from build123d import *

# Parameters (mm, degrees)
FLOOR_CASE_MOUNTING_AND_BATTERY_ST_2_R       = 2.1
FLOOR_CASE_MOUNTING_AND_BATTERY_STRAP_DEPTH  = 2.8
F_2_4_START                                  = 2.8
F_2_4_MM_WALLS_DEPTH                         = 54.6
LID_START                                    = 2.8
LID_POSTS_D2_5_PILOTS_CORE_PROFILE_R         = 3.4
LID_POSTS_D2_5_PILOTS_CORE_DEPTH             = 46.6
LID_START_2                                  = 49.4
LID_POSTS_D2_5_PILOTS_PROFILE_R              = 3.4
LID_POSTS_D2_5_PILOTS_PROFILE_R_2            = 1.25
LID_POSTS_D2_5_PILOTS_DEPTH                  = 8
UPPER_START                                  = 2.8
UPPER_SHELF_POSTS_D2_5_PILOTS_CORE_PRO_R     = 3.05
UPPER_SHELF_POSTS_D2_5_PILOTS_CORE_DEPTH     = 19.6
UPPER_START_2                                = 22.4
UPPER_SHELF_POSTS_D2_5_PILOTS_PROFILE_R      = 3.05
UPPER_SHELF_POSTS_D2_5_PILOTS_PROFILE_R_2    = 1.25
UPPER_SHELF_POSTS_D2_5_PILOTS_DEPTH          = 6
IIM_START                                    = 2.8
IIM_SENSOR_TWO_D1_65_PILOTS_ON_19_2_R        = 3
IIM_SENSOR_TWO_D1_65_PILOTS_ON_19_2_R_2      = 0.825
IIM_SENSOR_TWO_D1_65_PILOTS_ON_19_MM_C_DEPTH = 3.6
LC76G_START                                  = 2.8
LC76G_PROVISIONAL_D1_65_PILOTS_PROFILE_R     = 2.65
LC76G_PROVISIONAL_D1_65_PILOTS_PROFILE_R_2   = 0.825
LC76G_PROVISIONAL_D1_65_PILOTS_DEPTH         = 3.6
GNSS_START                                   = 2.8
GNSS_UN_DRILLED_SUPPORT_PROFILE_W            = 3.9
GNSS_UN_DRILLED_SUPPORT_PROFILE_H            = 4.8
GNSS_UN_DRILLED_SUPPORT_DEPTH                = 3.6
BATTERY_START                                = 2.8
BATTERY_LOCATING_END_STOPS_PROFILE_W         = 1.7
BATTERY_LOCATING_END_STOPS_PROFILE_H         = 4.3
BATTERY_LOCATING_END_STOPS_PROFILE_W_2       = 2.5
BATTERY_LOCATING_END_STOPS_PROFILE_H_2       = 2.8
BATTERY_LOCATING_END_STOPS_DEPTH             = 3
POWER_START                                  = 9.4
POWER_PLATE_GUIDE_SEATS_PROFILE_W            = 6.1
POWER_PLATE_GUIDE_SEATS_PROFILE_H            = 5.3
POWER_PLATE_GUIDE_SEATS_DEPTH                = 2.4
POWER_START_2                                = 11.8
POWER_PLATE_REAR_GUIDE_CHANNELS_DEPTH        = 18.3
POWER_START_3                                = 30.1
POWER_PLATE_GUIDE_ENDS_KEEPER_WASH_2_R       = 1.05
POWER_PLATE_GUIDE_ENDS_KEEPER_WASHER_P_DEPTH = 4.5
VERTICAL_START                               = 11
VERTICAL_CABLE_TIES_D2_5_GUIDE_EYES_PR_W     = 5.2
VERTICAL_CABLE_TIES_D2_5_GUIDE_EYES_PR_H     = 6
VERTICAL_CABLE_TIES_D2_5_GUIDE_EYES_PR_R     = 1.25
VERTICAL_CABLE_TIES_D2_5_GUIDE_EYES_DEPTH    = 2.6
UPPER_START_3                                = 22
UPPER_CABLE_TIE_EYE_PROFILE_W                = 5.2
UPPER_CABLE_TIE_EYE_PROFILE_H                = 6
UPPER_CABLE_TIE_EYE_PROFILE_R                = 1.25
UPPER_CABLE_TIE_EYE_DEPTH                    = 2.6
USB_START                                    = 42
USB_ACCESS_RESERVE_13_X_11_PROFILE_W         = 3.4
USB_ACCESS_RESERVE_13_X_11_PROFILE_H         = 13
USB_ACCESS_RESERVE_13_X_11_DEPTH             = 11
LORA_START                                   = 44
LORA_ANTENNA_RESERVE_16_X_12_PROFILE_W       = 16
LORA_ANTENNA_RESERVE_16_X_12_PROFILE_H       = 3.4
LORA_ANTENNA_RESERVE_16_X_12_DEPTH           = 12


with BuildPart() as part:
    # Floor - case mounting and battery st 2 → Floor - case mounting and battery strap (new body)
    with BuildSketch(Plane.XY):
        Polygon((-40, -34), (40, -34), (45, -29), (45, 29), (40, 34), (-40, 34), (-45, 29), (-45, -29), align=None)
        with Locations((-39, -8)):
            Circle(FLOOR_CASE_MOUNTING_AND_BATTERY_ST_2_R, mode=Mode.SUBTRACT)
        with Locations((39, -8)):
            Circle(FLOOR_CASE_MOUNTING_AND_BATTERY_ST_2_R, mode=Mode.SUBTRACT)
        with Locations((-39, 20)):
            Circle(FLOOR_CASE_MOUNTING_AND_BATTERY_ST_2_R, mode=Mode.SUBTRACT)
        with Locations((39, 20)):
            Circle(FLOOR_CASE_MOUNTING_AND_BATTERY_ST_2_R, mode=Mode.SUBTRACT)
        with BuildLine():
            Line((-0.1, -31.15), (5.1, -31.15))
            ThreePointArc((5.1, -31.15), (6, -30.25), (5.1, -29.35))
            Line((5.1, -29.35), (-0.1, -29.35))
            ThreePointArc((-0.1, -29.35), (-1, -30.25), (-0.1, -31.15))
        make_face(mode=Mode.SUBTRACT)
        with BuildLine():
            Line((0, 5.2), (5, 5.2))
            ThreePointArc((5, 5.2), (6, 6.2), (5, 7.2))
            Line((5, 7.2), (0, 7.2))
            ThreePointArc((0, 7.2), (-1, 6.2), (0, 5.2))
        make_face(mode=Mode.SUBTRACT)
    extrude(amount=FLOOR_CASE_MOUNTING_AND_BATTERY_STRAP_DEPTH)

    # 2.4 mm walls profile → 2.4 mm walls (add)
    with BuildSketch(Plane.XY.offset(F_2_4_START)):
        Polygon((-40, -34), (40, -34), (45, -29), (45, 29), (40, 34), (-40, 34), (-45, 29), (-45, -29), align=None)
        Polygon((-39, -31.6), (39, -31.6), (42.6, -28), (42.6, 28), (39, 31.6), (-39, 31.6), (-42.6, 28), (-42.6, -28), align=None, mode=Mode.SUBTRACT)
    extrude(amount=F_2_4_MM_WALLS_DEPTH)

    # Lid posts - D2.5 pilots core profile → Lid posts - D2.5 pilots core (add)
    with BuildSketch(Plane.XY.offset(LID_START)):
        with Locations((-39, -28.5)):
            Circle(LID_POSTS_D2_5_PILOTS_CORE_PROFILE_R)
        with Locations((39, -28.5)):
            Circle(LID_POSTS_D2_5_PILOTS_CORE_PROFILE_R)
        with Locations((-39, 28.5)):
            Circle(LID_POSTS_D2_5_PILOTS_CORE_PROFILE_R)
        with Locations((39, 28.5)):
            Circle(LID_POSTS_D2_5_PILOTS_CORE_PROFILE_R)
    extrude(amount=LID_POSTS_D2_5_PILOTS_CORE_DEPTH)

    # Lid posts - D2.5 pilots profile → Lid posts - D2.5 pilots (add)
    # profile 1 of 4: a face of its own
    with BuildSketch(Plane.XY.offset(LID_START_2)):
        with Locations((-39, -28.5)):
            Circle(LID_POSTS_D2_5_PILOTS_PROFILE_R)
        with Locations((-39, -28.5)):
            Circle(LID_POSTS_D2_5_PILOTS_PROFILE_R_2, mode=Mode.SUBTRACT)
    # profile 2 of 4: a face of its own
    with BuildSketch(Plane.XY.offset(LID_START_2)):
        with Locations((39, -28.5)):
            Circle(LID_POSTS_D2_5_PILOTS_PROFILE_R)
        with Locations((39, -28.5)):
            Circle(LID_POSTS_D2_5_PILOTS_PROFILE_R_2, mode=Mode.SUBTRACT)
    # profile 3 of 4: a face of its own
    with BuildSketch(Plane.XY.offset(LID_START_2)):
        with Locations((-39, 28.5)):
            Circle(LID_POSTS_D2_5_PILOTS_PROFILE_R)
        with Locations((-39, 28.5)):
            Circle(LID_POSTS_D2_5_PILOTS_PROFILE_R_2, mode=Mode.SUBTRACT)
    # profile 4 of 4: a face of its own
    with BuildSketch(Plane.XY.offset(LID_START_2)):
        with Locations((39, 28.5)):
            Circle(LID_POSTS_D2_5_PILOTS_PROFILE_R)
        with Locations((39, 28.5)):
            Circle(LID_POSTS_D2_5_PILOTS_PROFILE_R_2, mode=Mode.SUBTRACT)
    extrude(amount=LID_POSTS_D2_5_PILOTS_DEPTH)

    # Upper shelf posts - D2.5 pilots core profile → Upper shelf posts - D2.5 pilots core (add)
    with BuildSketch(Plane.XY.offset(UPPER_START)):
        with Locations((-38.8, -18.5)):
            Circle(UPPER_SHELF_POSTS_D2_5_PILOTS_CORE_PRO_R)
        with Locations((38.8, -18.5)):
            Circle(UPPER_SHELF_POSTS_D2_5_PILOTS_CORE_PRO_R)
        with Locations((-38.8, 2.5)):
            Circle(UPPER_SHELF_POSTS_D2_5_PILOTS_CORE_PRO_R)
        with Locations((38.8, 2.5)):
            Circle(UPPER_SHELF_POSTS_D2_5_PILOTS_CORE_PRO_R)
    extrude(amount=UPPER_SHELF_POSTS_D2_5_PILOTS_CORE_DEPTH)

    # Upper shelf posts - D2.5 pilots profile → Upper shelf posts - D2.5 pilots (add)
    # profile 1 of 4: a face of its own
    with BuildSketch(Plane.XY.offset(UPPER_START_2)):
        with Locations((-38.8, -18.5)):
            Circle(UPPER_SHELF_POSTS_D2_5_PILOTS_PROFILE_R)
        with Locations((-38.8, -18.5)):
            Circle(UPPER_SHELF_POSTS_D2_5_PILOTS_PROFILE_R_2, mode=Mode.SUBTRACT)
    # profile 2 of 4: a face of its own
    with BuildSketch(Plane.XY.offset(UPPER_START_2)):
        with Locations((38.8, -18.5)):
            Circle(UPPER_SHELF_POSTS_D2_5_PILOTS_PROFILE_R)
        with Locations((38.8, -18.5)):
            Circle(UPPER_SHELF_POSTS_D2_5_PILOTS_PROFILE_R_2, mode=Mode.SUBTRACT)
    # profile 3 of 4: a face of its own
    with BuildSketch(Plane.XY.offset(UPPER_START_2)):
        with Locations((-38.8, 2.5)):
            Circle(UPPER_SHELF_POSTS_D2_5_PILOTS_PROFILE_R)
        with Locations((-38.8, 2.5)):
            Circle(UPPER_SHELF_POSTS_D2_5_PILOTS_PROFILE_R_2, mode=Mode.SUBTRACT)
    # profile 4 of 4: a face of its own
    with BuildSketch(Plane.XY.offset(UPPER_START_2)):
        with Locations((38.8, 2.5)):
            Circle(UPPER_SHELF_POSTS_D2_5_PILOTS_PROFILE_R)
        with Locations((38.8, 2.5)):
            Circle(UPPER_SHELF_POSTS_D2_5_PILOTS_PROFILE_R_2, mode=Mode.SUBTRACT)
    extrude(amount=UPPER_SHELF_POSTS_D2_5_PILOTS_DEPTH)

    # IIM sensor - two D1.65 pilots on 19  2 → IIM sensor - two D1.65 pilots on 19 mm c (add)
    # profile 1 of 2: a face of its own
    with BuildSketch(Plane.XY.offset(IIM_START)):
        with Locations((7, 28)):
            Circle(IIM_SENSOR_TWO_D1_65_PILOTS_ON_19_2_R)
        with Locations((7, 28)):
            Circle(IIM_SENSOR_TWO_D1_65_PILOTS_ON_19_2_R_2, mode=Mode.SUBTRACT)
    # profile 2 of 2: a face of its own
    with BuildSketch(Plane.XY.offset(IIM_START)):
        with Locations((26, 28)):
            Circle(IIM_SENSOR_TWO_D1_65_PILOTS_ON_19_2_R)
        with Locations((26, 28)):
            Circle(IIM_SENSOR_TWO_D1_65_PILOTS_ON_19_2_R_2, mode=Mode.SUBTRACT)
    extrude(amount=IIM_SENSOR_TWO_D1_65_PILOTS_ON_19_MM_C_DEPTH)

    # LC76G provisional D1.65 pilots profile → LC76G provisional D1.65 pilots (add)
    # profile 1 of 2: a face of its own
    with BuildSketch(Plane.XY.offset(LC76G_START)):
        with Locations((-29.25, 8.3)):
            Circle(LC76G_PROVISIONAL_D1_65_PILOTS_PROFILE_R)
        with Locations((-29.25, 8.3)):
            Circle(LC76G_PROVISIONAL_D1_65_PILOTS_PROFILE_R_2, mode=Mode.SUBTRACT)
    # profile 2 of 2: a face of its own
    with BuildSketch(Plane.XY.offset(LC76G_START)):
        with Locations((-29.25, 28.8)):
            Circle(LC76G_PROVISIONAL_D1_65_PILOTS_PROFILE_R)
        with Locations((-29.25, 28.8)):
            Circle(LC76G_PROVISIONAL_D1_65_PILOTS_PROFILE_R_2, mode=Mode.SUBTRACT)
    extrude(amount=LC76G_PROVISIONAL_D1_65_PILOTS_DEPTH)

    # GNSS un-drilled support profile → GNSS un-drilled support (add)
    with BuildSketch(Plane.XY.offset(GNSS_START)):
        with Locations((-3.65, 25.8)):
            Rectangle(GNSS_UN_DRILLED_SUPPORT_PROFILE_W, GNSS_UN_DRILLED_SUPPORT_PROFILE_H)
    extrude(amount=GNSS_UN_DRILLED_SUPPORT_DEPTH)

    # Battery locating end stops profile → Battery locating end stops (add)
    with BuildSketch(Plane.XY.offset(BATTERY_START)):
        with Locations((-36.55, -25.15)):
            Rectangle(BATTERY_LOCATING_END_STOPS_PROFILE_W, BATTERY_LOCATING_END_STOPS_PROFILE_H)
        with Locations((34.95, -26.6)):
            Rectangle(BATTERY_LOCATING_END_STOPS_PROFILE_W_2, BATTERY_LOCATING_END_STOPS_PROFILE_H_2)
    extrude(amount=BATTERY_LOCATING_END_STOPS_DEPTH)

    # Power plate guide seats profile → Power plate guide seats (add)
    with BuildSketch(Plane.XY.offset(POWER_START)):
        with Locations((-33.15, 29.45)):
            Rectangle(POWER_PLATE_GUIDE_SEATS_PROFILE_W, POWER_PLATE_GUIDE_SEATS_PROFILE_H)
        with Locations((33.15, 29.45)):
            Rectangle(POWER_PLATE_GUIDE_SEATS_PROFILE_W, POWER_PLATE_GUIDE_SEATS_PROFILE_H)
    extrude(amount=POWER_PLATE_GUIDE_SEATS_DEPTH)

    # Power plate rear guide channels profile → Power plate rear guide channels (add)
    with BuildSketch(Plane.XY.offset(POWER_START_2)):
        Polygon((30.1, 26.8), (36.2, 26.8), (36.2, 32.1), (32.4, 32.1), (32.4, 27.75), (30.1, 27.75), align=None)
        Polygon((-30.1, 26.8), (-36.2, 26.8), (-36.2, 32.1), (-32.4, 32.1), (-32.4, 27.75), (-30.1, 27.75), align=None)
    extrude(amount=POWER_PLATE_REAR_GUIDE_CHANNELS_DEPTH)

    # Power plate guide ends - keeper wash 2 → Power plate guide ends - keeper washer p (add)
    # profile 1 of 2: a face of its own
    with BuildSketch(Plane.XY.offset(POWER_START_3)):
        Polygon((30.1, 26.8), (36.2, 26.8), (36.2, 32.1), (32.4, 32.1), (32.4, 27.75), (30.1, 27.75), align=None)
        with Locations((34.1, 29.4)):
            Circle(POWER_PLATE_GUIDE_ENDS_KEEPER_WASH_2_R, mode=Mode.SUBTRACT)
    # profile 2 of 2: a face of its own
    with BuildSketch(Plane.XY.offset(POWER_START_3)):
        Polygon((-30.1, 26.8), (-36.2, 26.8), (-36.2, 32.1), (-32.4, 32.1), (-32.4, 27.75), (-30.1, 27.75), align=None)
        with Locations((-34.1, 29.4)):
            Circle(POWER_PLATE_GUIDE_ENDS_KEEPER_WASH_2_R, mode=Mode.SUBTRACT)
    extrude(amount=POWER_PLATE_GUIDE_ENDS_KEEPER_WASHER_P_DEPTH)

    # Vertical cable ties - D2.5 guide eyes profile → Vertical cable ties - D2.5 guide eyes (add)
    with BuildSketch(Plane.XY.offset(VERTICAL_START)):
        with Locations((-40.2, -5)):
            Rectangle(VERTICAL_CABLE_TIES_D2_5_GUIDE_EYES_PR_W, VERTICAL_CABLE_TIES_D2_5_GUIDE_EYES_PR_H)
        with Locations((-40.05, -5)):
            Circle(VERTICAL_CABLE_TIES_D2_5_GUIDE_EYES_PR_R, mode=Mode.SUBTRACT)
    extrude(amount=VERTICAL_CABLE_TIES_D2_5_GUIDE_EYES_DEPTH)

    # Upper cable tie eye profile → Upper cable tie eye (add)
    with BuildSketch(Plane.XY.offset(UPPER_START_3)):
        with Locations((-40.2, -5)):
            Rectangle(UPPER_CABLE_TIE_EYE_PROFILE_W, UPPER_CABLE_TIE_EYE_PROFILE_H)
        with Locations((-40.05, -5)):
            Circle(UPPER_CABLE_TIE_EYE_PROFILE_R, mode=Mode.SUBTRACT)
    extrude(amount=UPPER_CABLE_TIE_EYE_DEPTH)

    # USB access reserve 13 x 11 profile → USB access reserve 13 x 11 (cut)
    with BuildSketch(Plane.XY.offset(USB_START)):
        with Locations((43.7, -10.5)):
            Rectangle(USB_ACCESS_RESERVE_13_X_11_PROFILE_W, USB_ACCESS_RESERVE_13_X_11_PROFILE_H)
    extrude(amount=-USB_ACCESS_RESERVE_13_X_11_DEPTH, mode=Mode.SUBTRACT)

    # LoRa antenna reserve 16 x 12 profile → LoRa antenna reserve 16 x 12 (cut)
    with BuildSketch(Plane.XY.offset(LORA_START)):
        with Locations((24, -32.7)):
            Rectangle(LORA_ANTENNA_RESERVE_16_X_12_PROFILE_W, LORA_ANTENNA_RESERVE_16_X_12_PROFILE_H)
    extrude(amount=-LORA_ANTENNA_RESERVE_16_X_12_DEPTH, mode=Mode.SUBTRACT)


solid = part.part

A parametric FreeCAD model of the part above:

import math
import FreeCAD as App
import Part
import Sketcher


def add_polygon(sketch, points):
    """Adds a closed chain of lines whose ends are joined by coincident constraints."""
    first, n = sketch.GeometryCount, len(points)
    for a, b in zip(points, points[1:] + points[:1]):
        sketch.addGeometry(Part.LineSegment(App.Vector(*a, 0), App.Vector(*b, 0)), False)
    for i in range(n):
        sketch.addConstraint(Sketcher.Constraint("Coincident", first + i, 2, first + (i + 1) % n, 1))

doc = App.newDocument("Part")
body = doc.addObject("PartDesign::Body", "Body")

sketch1 = body.newObject("Sketcher::SketchObject", "Sketch")
sketch1.AttachmentSupport = (doc.getObject("XY_Plane"), [""])
sketch1.MapMode = "FlatFace"
add_polygon(sketch1, [(-40, -34), (40, -34), (45, -29), (45, 29), (40, 34), (-40, 34), (-45, 29), (-45, -29)])
sketch1.addGeometry(Part.Circle(App.Vector(-39, -8, 0), App.Vector(0, 0, 1), 2.1), False)
sketch1.addGeometry(Part.LineSegment(App.Vector(5.1, -31.1, 0), App.Vector(-0.1, -31.1, 0)), False)
sketch1.addGeometry(Part.ArcOfCircle(Part.Circle(App.Vector(-0.1, -30.2, 0), App.Vector(0, 0, 1), 0.9), math.radians(90), math.radians(270)), False)
sketch1.addGeometry(Part.LineSegment(App.Vector(-0.1, -29.4, 0), App.Vector(5.1, -29.4, 0)), False)
sketch1.addGeometry(Part.ArcOfCircle(Part.Circle(App.Vector(5.1, -30.2, 0), App.Vector(0, 0, 1), 0.9), math.radians(-90), math.radians(90)), False)
sketch1.addGeometry(Part.Circle(App.Vector(39, -8, 0), App.Vector(0, 0, 1), 2.1), False)
sketch1.addGeometry(Part.Circle(App.Vector(-39, 20, 0), App.Vector(0, 0, 1), 2.1), False)
sketch1.addGeometry(Part.LineSegment(App.Vector(5, 5.2, 0), App.Vector(0, 5.2, 0)), False)
sketch1.addGeometry(Part.ArcOfCircle(Part.Circle(App.Vector(0, 6.2, 0), App.Vector(0, 0, 1), 1), math.radians(90), math.radians(270)), False)
sketch1.addGeometry(Part.LineSegment(App.Vector(0, 7.2, 0), App.Vector(5, 7.2, 0)), False)
sketch1.addGeometry(Part.ArcOfCircle(Part.Circle(App.Vector(5, 6.2, 0), App.Vector(0, 0, 1), 1), math.radians(-90), math.radians(90)), False)
sketch1.addGeometry(Part.Circle(App.Vector(39, 20, 0), App.Vector(0, 0, 1), 2.1), False)
sketch1.addConstraint(Sketcher.Constraint("Tangent", 9, 2, 10, 2))
sketch1.addConstraint(Sketcher.Constraint("Tangent", 10, 1, 11, 1))
sketch1.addConstraint(Sketcher.Constraint("Tangent", 11, 2, 12, 2))
sketch1.addConstraint(Sketcher.Constraint("Tangent", 12, 1, 9, 1))
sketch1.addConstraint(Sketcher.Constraint("Tangent", 15, 2, 16, 2))
sketch1.addConstraint(Sketcher.Constraint("Tangent", 16, 1, 17, 1))
sketch1.addConstraint(Sketcher.Constraint("Tangent", 17, 2, 18, 2))
sketch1.addConstraint(Sketcher.Constraint("Tangent", 18, 1, 15, 1))
sketch1.addConstraint(Sketcher.Constraint("Horizontal", 0))
sketch1.addConstraint(Sketcher.Constraint("Vertical", 2))
sketch1.addConstraint(Sketcher.Constraint("Horizontal", 4))
sketch1.addConstraint(Sketcher.Constraint("Vertical", 6))
sketch1.addConstraint(Sketcher.Constraint("Horizontal", 9))
sketch1.addConstraint(Sketcher.Constraint("Horizontal", 11))
sketch1.addConstraint(Sketcher.Constraint("Horizontal", 15))
sketch1.addConstraint(Sketcher.Constraint("Horizontal", 17))
sketch1.addConstraint(Sketcher.Constraint("Equal", 8, 13))
sketch1.addConstraint(Sketcher.Constraint("Equal", 13, 14))
sketch1.addConstraint(Sketcher.Constraint("Equal", 14, 19))
sketch1.addConstraint(Sketcher.Constraint("Symmetric", 0, 2, 4, 2, -1, 1))
sketch1.addConstraint(Sketcher.Constraint("Symmetric", 1, 2, 5, 2, -1, 1))
sketch1.addConstraint(Sketcher.Constraint("Symmetric", 8, 3, 13, 3, -2))
sketch1.addConstraint(Sketcher.Constraint("Symmetric", 14, 3, 19, 3, -2))
sketch1.addConstraint(Sketcher.Constraint("PointOnObject", 16, 3, -2))
sketch1.addConstraint(Sketcher.Constraint("Perpendicular", 1, 3))
sketch1.addConstraint(Sketcher.Constraint("Perpendicular", 5, 7))
sketch1.addConstraint(Sketcher.Constraint("Horizontal", 2, 2, 5, 2))
sketch1.addConstraint(Sketcher.Constraint("Horizontal", 1, 2, 6, 2))
sketch1.addConstraint(Sketcher.Constraint("Vertical", 8, 3, 14, 3))
sketch1.addConstraint(Sketcher.Constraint("Vertical", 0, 2, 3, 2))
sketch1.addConstraint(Sketcher.Constraint("Radius", 16, 1.0))
sketch1.addConstraint(Sketcher.Constraint("Diameter", 8, 4.2))
sketch1.addConstraint(Sketcher.Constraint("Radius", 10, 0.9))
sketch1.addConstraint(Sketcher.Constraint("DistanceX", 0, 1, 0, 2, 80.0))
sketch1.addConstraint(Sketcher.Constraint("DistanceX", 15, 2, 15, 1, 5.0))
sketch1.addConstraint(Sketcher.Constraint("DistanceY", 2, 1, 2, 2, 58.0))
sketch1.addConstraint(Sketcher.Constraint("DistanceX", 9, 2, 9, 1, 5.2))
sketch1.addConstraint(Sketcher.Constraint("DistanceX", 8, 3, -1, 1, 39.0))
sketch1.addConstraint(Sketcher.Constraint("DistanceY", 8, 3, -1, 1, 8.0))
sketch1.addConstraint(Sketcher.Constraint("DistanceY", -1, 1, 14, 3, 20.0))
sketch1.addConstraint(Sketcher.Constraint("DistanceY", 0, 2, -1, 1, 34.0))
sketch1.addConstraint(Sketcher.Constraint("DistanceX", 10, 3, -1, 1, 0.1))
sketch1.addConstraint(Sketcher.Constraint("DistanceY", -1, 1, 16, 3, 6.2))
sketch1.addConstraint(Sketcher.Constraint("DistanceY", 10, 3, -1, 1, 30.25))
pad1 = body.newObject("PartDesign::Pad", "Pad")
pad1.Profile = sketch1
pad1.Length = 2.8

sketch2 = body.newObject("Sketcher::SketchObject", "Sketch001")
sketch2.AttachmentSupport = (doc.getObject("XY_Plane"), [""])
sketch2.MapMode = "FlatFace"
sketch2.AttachmentOffset = App.Placement(App.Vector(0, 0, 2.8), App.Rotation())
add_polygon(sketch2, [(-40, -34), (40, -34), (45, -29), (45, 29), (40, 34), (-40, 34), (-45, 29), (-45, -29)])
add_polygon(sketch2, [(39, -32), (-39, -32), (-43, -28), (-43, 28), (-39, 32), (39, 32), (43, 28), (43, -28)])
sketch2.addConstraint(Sketcher.Constraint("Horizontal", 0))
sketch2.addConstraint(Sketcher.Constraint("Vertical", 2))
sketch2.addConstraint(Sketcher.Constraint("Horizontal", 4))
sketch2.addConstraint(Sketcher.Constraint("Vertical", 6))
sketch2.addConstraint(Sketcher.Constraint("Horizontal", 8))
sketch2.addConstraint(Sketcher.Constraint("Vertical", 10))
sketch2.addConstraint(Sketcher.Constraint("Horizontal", 12))
sketch2.addConstraint(Sketcher.Constraint("Vertical", 14))
sketch2.addConstraint(Sketcher.Constraint("Symmetric", 0, 2, 4, 2, -1, 1))
sketch2.addConstraint(Sketcher.Constraint("Symmetric", 1, 2, 5, 2, -1, 1))
sketch2.addConstraint(Sketcher.Constraint("Symmetric", 8, 2, 12, 2, -1, 1))
sketch2.addConstraint(Sketcher.Constraint("Symmetric", 9, 2, 13, 2, -1, 1))
sketch2.addConstraint(Sketcher.Constraint("Perpendicular", 1, 3))
sketch2.addConstraint(Sketcher.Constraint("Perpendicular", 5, 7))
sketch2.addConstraint(Sketcher.Constraint("Parallel", 7, 9))
sketch2.addConstraint(Sketcher.Constraint("Perpendicular", 9, 11))
sketch2.addConstraint(Sketcher.Constraint("Perpendicular", 13, 15))
sketch2.addConstraint(Sketcher.Constraint("Horizontal", 2, 2, 5, 2))
sketch2.addConstraint(Sketcher.Constraint("Horizontal", 1, 2, 6, 2))
sketch2.addConstraint(Sketcher.Constraint("Horizontal", 10, 2, 13, 2))
sketch2.addConstraint(Sketcher.Constraint("Horizontal", 9, 2, 14, 2))
sketch2.addConstraint(Sketcher.Constraint("Vertical", 0, 2, 3, 2))
sketch2.addConstraint(Sketcher.Constraint("DistanceX", 0, 1, 0, 2, 80.0))
sketch2.addConstraint(Sketcher.Constraint("DistanceX", 8, 2, 8, 1, 78.0))
sketch2.addConstraint(Sketcher.Constraint("DistanceY", 2, 1, 2, 2, 58.0))
sketch2.addConstraint(Sketcher.Constraint("DistanceY", 10, 1, 10, 2, 56.0))
sketch2.addConstraint(Sketcher.Constraint("DistanceY", 0, 2, -1, 1, 34.0))
sketch2.addConstraint(Sketcher.Constraint("DistanceY", 8, 2, -1, 1, 31.6))
pad2 = body.newObject("PartDesign::Pad", "Pad001")
pad2.Profile = sketch2
pad2.Length = 54.6

sketch3 = body.newObject("Sketcher::SketchObject", "Sketch002")
sketch3.AttachmentSupport = (doc.getObject("XY_Plane"), [""])
sketch3.MapMode = "FlatFace"
sketch3.AttachmentOffset = App.Placement(App.Vector(0, 0, 2.8), App.Rotation())
sketch3.addGeometry(Part.Circle(App.Vector(-39, -28.5, 0), App.Vector(0, 0, 1), 3.4), False)
sketch3.addGeometry(Part.Circle(App.Vector(39, -28.5, 0), App.Vector(0, 0, 1), 3.4), False)
sketch3.addGeometry(Part.Circle(App.Vector(-39, 28.5, 0), App.Vector(0, 0, 1), 3.4), False)
sketch3.addGeometry(Part.Circle(App.Vector(39, 28.5, 0), App.Vector(0, 0, 1), 3.4), False)
sketch3.addConstraint(Sketcher.Constraint("Equal", 0, 1))
sketch3.addConstraint(Sketcher.Constraint("Equal", 1, 2))
sketch3.addConstraint(Sketcher.Constraint("Equal", 2, 3))
sketch3.addConstraint(Sketcher.Constraint("Symmetric", 1, 3, 2, 3, -1, 1))
sketch3.addConstraint(Sketcher.Constraint("Symmetric", 0, 3, 3, 3, -1, 1))
sketch3.addConstraint(Sketcher.Constraint("Symmetric", 0, 3, 1, 3, -2))
sketch3.addConstraint(Sketcher.Constraint("Diameter", 0, 6.8))
sketch3.addConstraint(Sketcher.Constraint("DistanceX", 0, 3, -1, 1, 39.0))
sketch3.addConstraint(Sketcher.Constraint("DistanceY", 0, 3, 2, 3, 57.0))
pad3 = body.newObject("PartDesign::Pad", "Pad002")
pad3.Profile = sketch3
pad3.Length = 46.6

sketch4 = body.newObject("Sketcher::SketchObject", "Sketch003")
sketch4.AttachmentSupport = (doc.getObject("XY_Plane"), [""])
sketch4.MapMode = "FlatFace"
sketch4.AttachmentOffset = App.Placement(App.Vector(0, 0, 49.4), App.Rotation())
sketch4.addGeometry(Part.Circle(App.Vector(-39, -28.5, 0), App.Vector(0, 0, 1), 3.4), False)
sketch4.addGeometry(Part.Circle(App.Vector(-39, -28.5, 0), App.Vector(0, 0, 1), 1.2), False)
sketch4.addGeometry(Part.Circle(App.Vector(39, -28.5, 0), App.Vector(0, 0, 1), 3.4), False)
sketch4.addGeometry(Part.Circle(App.Vector(39, -28.5, 0), App.Vector(0, 0, 1), 1.2), False)
sketch4.addGeometry(Part.Circle(App.Vector(-39, 28.5, 0), App.Vector(0, 0, 1), 3.4), False)
sketch4.addGeometry(Part.Circle(App.Vector(-39, 28.5, 0), App.Vector(0, 0, 1), 1.2), False)
sketch4.addGeometry(Part.Circle(App.Vector(39, 28.5, 0), App.Vector(0, 0, 1), 3.4), False)
sketch4.addGeometry(Part.Circle(App.Vector(39, 28.5, 0), App.Vector(0, 0, 1), 1.2), False)
sketch4.addConstraint(Sketcher.Constraint("Coincident", 1, 3, 0, 3))
sketch4.addConstraint(Sketcher.Constraint("Coincident", 3, 3, 2, 3))
sketch4.addConstraint(Sketcher.Constraint("Coincident", 5, 3, 4, 3))
sketch4.addConstraint(Sketcher.Constraint("Coincident", 7, 3, 6, 3))
sketch4.addConstraint(Sketcher.Constraint("Equal", 0, 2))
sketch4.addConstraint(Sketcher.Constraint("Equal", 1, 3))
sketch4.addConstraint(Sketcher.Constraint("Equal", 2, 4))
sketch4.addConstraint(Sketcher.Constraint("Equal", 3, 5))
sketch4.addConstraint(Sketcher.Constraint("Equal", 4, 6))
sketch4.addConstraint(Sketcher.Constraint("Equal", 5, 7))
sketch4.addConstraint(Sketcher.Constraint("Symmetric", 2, 3, 4, 3, -1, 1))
sketch4.addConstraint(Sketcher.Constraint("Symmetric", 0, 3, 6, 3, -1, 1))
sketch4.addConstraint(Sketcher.Constraint("Symmetric", 0, 3, 2, 3, -2))
sketch4.addConstraint(Sketcher.Constraint("Diameter", 0, 6.8))
sketch4.addConstraint(Sketcher.Constraint("Diameter", 1, 2.5))
sketch4.addConstraint(Sketcher.Constraint("DistanceX", 0, 3, -1, 1, 39.0))
sketch4.addConstraint(Sketcher.Constraint("DistanceY", 0, 3, 4, 3, 57.0))
pad4 = body.newObject("PartDesign::Pad", "Pad003")
pad4.Profile = sketch4
pad4.Length = 8

sketch5 = body.newObject("Sketcher::SketchObject", "Sketch004")
sketch5.AttachmentSupport = (doc.getObject("XY_Plane"), [""])
sketch5.MapMode = "FlatFace"
sketch5.AttachmentOffset = App.Placement(App.Vector(0, 0, 2.8), App.Rotation())
sketch5.addGeometry(Part.Circle(App.Vector(-38.8, -18.5, 0), App.Vector(0, 0, 1), 3), False)
sketch5.addGeometry(Part.Circle(App.Vector(38.8, -18.5, 0), App.Vector(0, 0, 1), 3), False)
sketch5.addGeometry(Part.Circle(App.Vector(-38.8, 2.5, 0), App.Vector(0, 0, 1), 3), False)
sketch5.addGeometry(Part.Circle(App.Vector(38.8, 2.5, 0), App.Vector(0, 0, 1), 3), False)
sketch5.addConstraint(Sketcher.Constraint("Equal", 0, 1))
sketch5.addConstraint(Sketcher.Constraint("Equal", 1, 2))
sketch5.addConstraint(Sketcher.Constraint("Equal", 2, 3))
sketch5.addConstraint(Sketcher.Constraint("Symmetric", 0, 3, 1, 3, -2))
sketch5.addConstraint(Sketcher.Constraint("Symmetric", 2, 3, 3, 3, -2))
sketch5.addConstraint(Sketcher.Constraint("Vertical", 0, 3, 2, 3))
sketch5.addConstraint(Sketcher.Constraint("Diameter", 0, 6.1))
sketch5.addConstraint(Sketcher.Constraint("DistanceY", 0, 3, 2, 3, 21.0))
sketch5.addConstraint(Sketcher.Constraint("DistanceX", 0, 3, -1, 1, 38.8))
sketch5.addConstraint(Sketcher.Constraint("DistanceY", 0, 3, -1, 1, 18.5))
pad5 = body.newObject("PartDesign::Pad", "Pad004")
pad5.Profile = sketch5
pad5.Length = 19.6

sketch6 = body.newObject("Sketcher::SketchObject", "Sketch005")
sketch6.AttachmentSupport = (doc.getObject("XY_Plane"), [""])
sketch6.MapMode = "FlatFace"
sketch6.AttachmentOffset = App.Placement(App.Vector(0, 0, 22.4), App.Rotation())
sketch6.addGeometry(Part.Circle(App.Vector(-38.8, -18.5, 0), App.Vector(0, 0, 1), 3), False)
sketch6.addGeometry(Part.Circle(App.Vector(-38.8, -18.5, 0), App.Vector(0, 0, 1), 1.2), False)
sketch6.addGeometry(Part.Circle(App.Vector(38.8, -18.5, 0), App.Vector(0, 0, 1), 3), False)
sketch6.addGeometry(Part.Circle(App.Vector(38.8, -18.5, 0), App.Vector(0, 0, 1), 1.2), False)
sketch6.addGeometry(Part.Circle(App.Vector(-38.8, 2.5, 0), App.Vector(0, 0, 1), 3), False)
sketch6.addGeometry(Part.Circle(App.Vector(-38.8, 2.5, 0), App.Vector(0, 0, 1), 1.2), False)
sketch6.addGeometry(Part.Circle(App.Vector(38.8, 2.5, 0), App.Vector(0, 0, 1), 3), False)
sketch6.addGeometry(Part.Circle(App.Vector(38.8, 2.5, 0), App.Vector(0, 0, 1), 1.2), False)
sketch6.addConstraint(Sketcher.Constraint("Coincident", 1, 3, 0, 3))
sketch6.addConstraint(Sketcher.Constraint("Coincident", 3, 3, 2, 3))
sketch6.addConstraint(Sketcher.Constraint("Coincident", 5, 3, 4, 3))
sketch6.addConstraint(Sketcher.Constraint("Coincident", 7, 3, 6, 3))
sketch6.addConstraint(Sketcher.Constraint("Equal", 0, 2))
sketch6.addConstraint(Sketcher.Constraint("Equal", 1, 3))
sketch6.addConstraint(Sketcher.Constraint("Equal", 2, 4))
sketch6.addConstraint(Sketcher.Constraint("Equal", 3, 5))
sketch6.addConstraint(Sketcher.Constraint("Equal", 4, 6))
sketch6.addConstraint(Sketcher.Constraint("Equal", 5, 7))
sketch6.addConstraint(Sketcher.Constraint("Symmetric", 0, 3, 2, 3, -2))
sketch6.addConstraint(Sketcher.Constraint("Symmetric", 4, 3, 6, 3, -2))
sketch6.addConstraint(Sketcher.Constraint("Vertical", 1, 3, 4, 3))
sketch6.addConstraint(Sketcher.Constraint("Diameter", 0, 6.1))
sketch6.addConstraint(Sketcher.Constraint("Diameter", 1, 2.5))
sketch6.addConstraint(Sketcher.Constraint("DistanceY", 0, 3, 4, 3, 21.0))
sketch6.addConstraint(Sketcher.Constraint("DistanceX", 0, 3, -1, 1, 38.8))
sketch6.addConstraint(Sketcher.Constraint("DistanceY", 0, 3, -1, 1, 18.5))
pad6 = body.newObject("PartDesign::Pad", "Pad005")
pad6.Profile = sketch6
pad6.Length = 6

sketch7 = body.newObject("Sketcher::SketchObject", "Sketch006")
sketch7.AttachmentSupport = (doc.getObject("XY_Plane"), [""])
sketch7.MapMode = "FlatFace"
sketch7.AttachmentOffset = App.Placement(App.Vector(0, 0, 2.8), App.Rotation())
sketch7.addGeometry(Part.Circle(App.Vector(7, 28, 0), App.Vector(0, 0, 1), 3), False)
sketch7.addGeometry(Part.Circle(App.Vector(7, 28, 0), App.Vector(0, 0, 1), 0.8), False)
sketch7.addGeometry(Part.Circle(App.Vector(26, 28, 0), App.Vector(0, 0, 1), 3), False)
sketch7.addGeometry(Part.Circle(App.Vector(26, 28, 0), App.Vector(0, 0, 1), 0.8), False)
sketch7.addConstraint(Sketcher.Constraint("Coincident", 1, 3, 0, 3))
sketch7.addConstraint(Sketcher.Constraint("Coincident", 3, 3, 2, 3))
sketch7.addConstraint(Sketcher.Constraint("Equal", 0, 2))
sketch7.addConstraint(Sketcher.Constraint("Equal", 1, 3))
sketch7.addConstraint(Sketcher.Constraint("Horizontal", 1, 3, 2, 3))
sketch7.addConstraint(Sketcher.Constraint("Diameter", 0, 6.0))
sketch7.addConstraint(Sketcher.Constraint("Diameter", 1, 1.65))
sketch7.addConstraint(Sketcher.Constraint("DistanceX", -1, 1, 0, 3, 7.0))
sketch7.addConstraint(Sketcher.Constraint("DistanceY", -1, 1, 0, 3, 28.0))
sketch7.addConstraint(Sketcher.Constraint("DistanceX", -1, 1, 2, 3, 26.0))
pad7 = body.newObject("PartDesign::Pad", "Pad006")
pad7.Profile = sketch7
pad7.Length = 3.6

sketch8 = body.newObject("Sketcher::SketchObject", "Sketch007")
sketch8.AttachmentSupport = (doc.getObject("XY_Plane"), [""])
sketch8.MapMode = "FlatFace"
sketch8.AttachmentOffset = App.Placement(App.Vector(0, 0, 2.8), App.Rotation())
sketch8.addGeometry(Part.Circle(App.Vector(-29.2, 8.3, 0), App.Vector(0, 0, 1), 2.6), False)
sketch8.addGeometry(Part.Circle(App.Vector(-29.2, 8.3, 0), App.Vector(0, 0, 1), 0.8), False)
sketch8.addGeometry(Part.Circle(App.Vector(-29.2, 28.8, 0), App.Vector(0, 0, 1), 2.6), False)
sketch8.addGeometry(Part.Circle(App.Vector(-29.2, 28.8, 0), App.Vector(0, 0, 1), 0.8), False)
sketch8.addConstraint(Sketcher.Constraint("Coincident", 1, 3, 0, 3))
sketch8.addConstraint(Sketcher.Constraint("Coincident", 3, 3, 2, 3))
sketch8.addConstraint(Sketcher.Constraint("Equal", 0, 2))
sketch8.addConstraint(Sketcher.Constraint("Equal", 1, 3))
sketch8.addConstraint(Sketcher.Constraint("Vertical", 1, 3, 2, 3))
sketch8.addConstraint(Sketcher.Constraint("Diameter", 0, 5.3))
sketch8.addConstraint(Sketcher.Constraint("Diameter", 1, 1.65))
sketch8.addConstraint(Sketcher.Constraint("DistanceY", -1, 1, 0, 3, 8.3))
sketch8.addConstraint(Sketcher.Constraint("DistanceY", -1, 1, 2, 3, 28.8))
sketch8.addConstraint(Sketcher.Constraint("DistanceX", 0, 3, -1, 1, 29.25))
pad8 = body.newObject("PartDesign::Pad", "Pad007")
pad8.Profile = sketch8
pad8.Length = 3.6

sketch9 = body.newObject("Sketcher::SketchObject", "Sketch008")
sketch9.AttachmentSupport = (doc.getObject("XY_Plane"), [""])
sketch9.MapMode = "FlatFace"
sketch9.AttachmentOffset = App.Placement(App.Vector(0, 0, 2.8), App.Rotation())
add_polygon(sketch9, [(-5.6, 28.2), (-5.6, 23.4), (-1.7, 23.4), (-1.7, 28.2)])
sketch9.addConstraint(Sketcher.Constraint("Vertical", 0))
sketch9.addConstraint(Sketcher.Constraint("Horizontal", 1))
sketch9.addConstraint(Sketcher.Constraint("Vertical", 2))
sketch9.addConstraint(Sketcher.Constraint("Horizontal", 3))
sketch9.addConstraint(Sketcher.Constraint("DistanceX", 1, 1, 1, 2, 3.9))
sketch9.addConstraint(Sketcher.Constraint("DistanceY", 0, 2, 0, 1, 4.8))
sketch9.addConstraint(Sketcher.Constraint("DistanceX", 0, 2, -1, 1, 5.6))
sketch9.addConstraint(Sketcher.Constraint("DistanceY", -1, 1, 0, 2, 23.4))
pad9 = body.newObject("PartDesign::Pad", "Pad008")
pad9.Profile = sketch9
pad9.Length = 3.6

sketch10 = body.newObject("Sketcher::SketchObject", "Sketch009")
sketch10.AttachmentSupport = (doc.getObject("XY_Plane"), [""])
sketch10.MapMode = "FlatFace"
sketch10.AttachmentOffset = App.Placement(App.Vector(0, 0, 2.8), App.Rotation())
add_polygon(sketch10, [(-37.4, -23), (-37.4, -27.3), (-35.7, -27.3), (-35.7, -23)])
add_polygon(sketch10, [(33.7, -25.2), (33.7, -28), (36.2, -28), (36.2, -25.2)])
sketch10.addConstraint(Sketcher.Constraint("Vertical", 0))
sketch10.addConstraint(Sketcher.Constraint("Horizontal", 1))
sketch10.addConstraint(Sketcher.Constraint("Vertical", 2))
sketch10.addConstraint(Sketcher.Constraint("Horizontal", 3))
sketch10.addConstraint(Sketcher.Constraint("Vertical", 4))
sketch10.addConstraint(Sketcher.Constraint("Horizontal", 5))
sketch10.addConstraint(Sketcher.Constraint("Vertical", 6))
sketch10.addConstraint(Sketcher.Constraint("Horizontal", 7))
sketch10.addConstraint(Sketcher.Constraint("DistanceX", 1, 1, 1, 2, 1.7))
sketch10.addConstraint(Sketcher.Constraint("DistanceX", 5, 1, 5, 2, 2.5))
sketch10.addConstraint(Sketcher.Constraint("DistanceY", 0, 2, 0, 1, 4.3))
sketch10.addConstraint(Sketcher.Constraint("DistanceY", 4, 2, 4, 1, 2.8))
sketch10.addConstraint(Sketcher.Constraint("DistanceY", 2, 2, -1, 1, 23.0))
sketch10.addConstraint(Sketcher.Constraint("DistanceY", 4, 2, -1, 1, 28.0))
sketch10.addConstraint(Sketcher.Constraint("DistanceX", 0, 2, -1, 1, 37.4))
sketch10.addConstraint(Sketcher.Constraint("DistanceX", -1, 1, 4, 2, 33.7))
pad10 = body.newObject("PartDesign::Pad", "Pad009")
pad10.Profile = sketch10
pad10.Length = 3

sketch11 = body.newObject("Sketcher::SketchObject", "Sketch010")
sketch11.AttachmentSupport = (doc.getObject("XY_Plane"), [""])
sketch11.MapMode = "FlatFace"
sketch11.AttachmentOffset = App.Placement(App.Vector(0, 0, 9.4), App.Rotation())
add_polygon(sketch11, [(-36, 32), (-36, 27), (-30, 27), (-30, 32)])
add_polygon(sketch11, [(30, 32), (30, 27), (36, 27), (36, 32)])
sketch11.addConstraint(Sketcher.Constraint("Vertical", 0))
sketch11.addConstraint(Sketcher.Constraint("Horizontal", 1))
sketch11.addConstraint(Sketcher.Constraint("Vertical", 2))
sketch11.addConstraint(Sketcher.Constraint("Horizontal", 3))
sketch11.addConstraint(Sketcher.Constraint("Vertical", 4))
sketch11.addConstraint(Sketcher.Constraint("Horizontal", 5))
sketch11.addConstraint(Sketcher.Constraint("Vertical", 6))
sketch11.addConstraint(Sketcher.Constraint("Horizontal", 7))
sketch11.addConstraint(Sketcher.Constraint("Symmetric", 1, 2, 4, 2, -2))
sketch11.addConstraint(Sketcher.Constraint("Symmetric", 3, 2, 6, 2, -2))
sketch11.addConstraint(Sketcher.Constraint("DistanceX", 1, 1, 1, 2, 6.1))
sketch11.addConstraint(Sketcher.Constraint("DistanceY", 0, 2, 0, 1, 5.3))
sketch11.addConstraint(Sketcher.Constraint("DistanceX", 0, 2, -1, 1, 36.2))
sketch11.addConstraint(Sketcher.Constraint("DistanceY", -1, 1, 0, 2, 26.8))
pad11 = body.newObject("PartDesign::Pad", "Pad010")
pad11.Profile = sketch11
pad11.Length = 2.4

sketch12 = body.newObject("Sketcher::SketchObject", "Sketch011")
sketch12.AttachmentSupport = (doc.getObject("XY_Plane"), [""])
sketch12.MapMode = "FlatFace"
sketch12.AttachmentOffset = App.Placement(App.Vector(0, 0, 11.8), App.Rotation())
add_polygon(sketch12, [(30.1, 26.8), (36.2, 26.8), (36.2, 32.1), (32.4, 32.1), (32.4, 27.8), (30.1, 27.8)])
add_polygon(sketch12, [(-36.2, 26.8), (-30.1, 26.8), (-30.1, 27.8), (-32.4, 27.8), (-32.4, 32.1), (-36.2, 32.1)])
sketch12.addConstraint(Sketcher.Constraint("Horizontal", 0))
sketch12.addConstraint(Sketcher.Constraint("Vertical", 1))
sketch12.addConstraint(Sketcher.Constraint("Horizontal", 2))
sketch12.addConstraint(Sketcher.Constraint("Vertical", 3))
sketch12.addConstraint(Sketcher.Constraint("Horizontal", 4))
sketch12.addConstraint(Sketcher.Constraint("Vertical", 5))
sketch12.addConstraint(Sketcher.Constraint("Horizontal", 6))
sketch12.addConstraint(Sketcher.Constraint("Vertical", 7))
sketch12.addConstraint(Sketcher.Constraint("Horizontal", 8))
sketch12.addConstraint(Sketcher.Constraint("Vertical", 9))
sketch12.addConstraint(Sketcher.Constraint("Horizontal", 10))
sketch12.addConstraint(Sketcher.Constraint("Vertical", 11))
sketch12.addConstraint(Sketcher.Constraint("Symmetric", 5, 2, 6, 2, -2))
sketch12.addConstraint(Sketcher.Constraint("Symmetric", 3, 2, 8, 2, -2))
sketch12.addConstraint(Sketcher.Constraint("Symmetric", 1, 2, 10, 2, -2))
sketch12.addConstraint(Sketcher.Constraint("DistanceX", 0, 1, 0, 2, 6.1))
sketch12.addConstraint(Sketcher.Constraint("DistanceX", 2, 2, 2, 1, 3.8))
sketch12.addConstraint(Sketcher.Constraint("DistanceY", 1, 1, 1, 2, 5.3))
sketch12.addConstraint(Sketcher.Constraint("DistanceY", 3, 2, 3, 1, 4.35))
sketch12.addConstraint(Sketcher.Constraint("DistanceX", -1, 1, 0, 2, 36.2))
sketch12.addConstraint(Sketcher.Constraint("DistanceY", -1, 1, 0, 2, 26.8))
pad12 = body.newObject("PartDesign::Pad", "Pad011")
pad12.Profile = sketch12
pad12.Length = 18.3

sketch13 = body.newObject("Sketcher::SketchObject", "Sketch012")
sketch13.AttachmentSupport = (doc.getObject("XY_Plane"), [""])
sketch13.MapMode = "FlatFace"
sketch13.AttachmentOffset = App.Placement(App.Vector(0, 0, 30.1), App.Rotation())
add_polygon(sketch13, [(30.1, 26.8), (36.2, 26.8), (36.2, 32.1), (32.4, 32.1), (32.4, 27.8), (30.1, 27.8)])
sketch13.addGeometry(Part.Circle(App.Vector(34.1, 29.4, 0), App.Vector(0, 0, 1), 1.1), False)
add_polygon(sketch13, [(-36.2, 26.8), (-30.1, 26.8), (-30.1, 27.8), (-32.4, 27.8), (-32.4, 32.1), (-36.2, 32.1)])
sketch13.addGeometry(Part.Circle(App.Vector(-34.1, 29.4, 0), App.Vector(0, 0, 1), 1.1), False)
sketch13.addConstraint(Sketcher.Constraint("Horizontal", 0))
sketch13.addConstraint(Sketcher.Constraint("Vertical", 1))
sketch13.addConstraint(Sketcher.Constraint("Horizontal", 2))
sketch13.addConstraint(Sketcher.Constraint("Vertical", 3))
sketch13.addConstraint(Sketcher.Constraint("Horizontal", 4))
sketch13.addConstraint(Sketcher.Constraint("Vertical", 5))
sketch13.addConstraint(Sketcher.Constraint("Horizontal", 7))
sketch13.addConstraint(Sketcher.Constraint("Vertical", 8))
sketch13.addConstraint(Sketcher.Constraint("Horizontal", 9))
sketch13.addConstraint(Sketcher.Constraint("Vertical", 10))
sketch13.addConstraint(Sketcher.Constraint("Horizontal", 11))
sketch13.addConstraint(Sketcher.Constraint("Vertical", 12))
sketch13.addConstraint(Sketcher.Constraint("Equal", 6, 13))
sketch13.addConstraint(Sketcher.Constraint("Symmetric", 6, 3, 13, 3, -2))
sketch13.addConstraint(Sketcher.Constraint("Symmetric", 5, 2, 7, 2, -2))
sketch13.addConstraint(Sketcher.Constraint("Symmetric", 3, 2, 9, 2, -2))
sketch13.addConstraint(Sketcher.Constraint("Symmetric", 1, 2, 11, 2, -2))
sketch13.addConstraint(Sketcher.Constraint("Diameter", 6, 2.1))
sketch13.addConstraint(Sketcher.Constraint("DistanceX", 0, 1, 0, 2, 6.1))
sketch13.addConstraint(Sketcher.Constraint("DistanceX", 2, 2, 2, 1, 3.8))
sketch13.addConstraint(Sketcher.Constraint("DistanceY", 1, 1, 1, 2, 5.3))
sketch13.addConstraint(Sketcher.Constraint("DistanceX", 4, 2, 6, 3, 4.0))
sketch13.addConstraint(Sketcher.Constraint("DistanceY", 3, 2, 3, 1, 4.35))
sketch13.addConstraint(Sketcher.Constraint("DistanceX", -1, 1, 6, 3, 34.1))
sketch13.addConstraint(Sketcher.Constraint("DistanceY", -1, 1, 6, 3, 29.4))
sketch13.addConstraint(Sketcher.Constraint("DistanceY", -1, 1, 0, 2, 26.8))
pad13 = body.newObject("PartDesign::Pad", "Pad012")
pad13.Profile = sketch13
pad13.Length = 4.5

sketch14 = body.newObject("Sketcher::SketchObject", "Sketch013")
sketch14.AttachmentSupport = (doc.getObject("XY_Plane"), [""])
sketch14.MapMode = "FlatFace"
sketch14.AttachmentOffset = App.Placement(App.Vector(0, 0, 11), App.Rotation())
add_polygon(sketch14, [(-42.8, -2), (-42.8, -8), (-37.6, -8), (-37.6, -2)])
sketch14.addGeometry(Part.Circle(App.Vector(-40, -5, 0), App.Vector(0, 0, 1), 1.2), False)
sketch14.addConstraint(Sketcher.Constraint("Vertical", 0))
sketch14.addConstraint(Sketcher.Constraint("Horizontal", 1))
sketch14.addConstraint(Sketcher.Constraint("Vertical", 2))
sketch14.addConstraint(Sketcher.Constraint("Horizontal", 3))
sketch14.addConstraint(Sketcher.Constraint("Diameter", 4, 2.5))
sketch14.addConstraint(Sketcher.Constraint("DistanceY", 0, 2, 0, 1, 6.0))
sketch14.addConstraint(Sketcher.Constraint("DistanceX", 1, 1, 1, 2, 5.2))
sketch14.addConstraint(Sketcher.Constraint("DistanceY", 4, 3, -1, 1, 5.0))
sketch14.addConstraint(Sketcher.Constraint("DistanceY", 0, 2, -1, 1, 8.0))
sketch14.addConstraint(Sketcher.Constraint("DistanceX", 0, 2, -1, 1, 42.8))
sketch14.addConstraint(Sketcher.Constraint("DistanceX", 4, 3, -1, 1, 40.05))
pad14 = body.newObject("PartDesign::Pad", "Pad013")
pad14.Profile = sketch14
pad14.Length = 2.6

sketch15 = body.newObject("Sketcher::SketchObject", "Sketch014")
sketch15.AttachmentSupport = (doc.getObject("XY_Plane"), [""])
sketch15.MapMode = "FlatFace"
sketch15.AttachmentOffset = App.Placement(App.Vector(0, 0, 22), App.Rotation())
add_polygon(sketch15, [(-42.8, -2), (-42.8, -8), (-37.6, -8), (-37.6, -2)])
sketch15.addGeometry(Part.Circle(App.Vector(-40, -5, 0), App.Vector(0, 0, 1), 1.2), False)
sketch15.addConstraint(Sketcher.Constraint("Vertical", 0))
sketch15.addConstraint(Sketcher.Constraint("Horizontal", 1))
sketch15.addConstraint(Sketcher.Constraint("Vertical", 2))
sketch15.addConstraint(Sketcher.Constraint("Horizontal", 3))
sketch15.addConstraint(Sketcher.Constraint("Diameter", 4, 2.5))
sketch15.addConstraint(Sketcher.Constraint("DistanceY", 0, 2, 0, 1, 6.0))
sketch15.addConstraint(Sketcher.Constraint("DistanceX", 1, 1, 1, 2, 5.2))
sketch15.addConstraint(Sketcher.Constraint("DistanceY", 4, 3, -1, 1, 5.0))
sketch15.addConstraint(Sketcher.Constraint("DistanceY", 0, 2, -1, 1, 8.0))
sketch15.addConstraint(Sketcher.Constraint("DistanceX", 0, 2, -1, 1, 42.8))
sketch15.addConstraint(Sketcher.Constraint("DistanceX", 4, 3, -1, 1, 40.05))
pad15 = body.newObject("PartDesign::Pad", "Pad014")
pad15.Profile = sketch15
pad15.Length = 2.6

sketch16 = body.newObject("Sketcher::SketchObject", "Sketch015")
sketch16.AttachmentSupport = (doc.getObject("XY_Plane"), [""])
sketch16.MapMode = "FlatFace"
sketch16.AttachmentOffset = App.Placement(App.Vector(0, 0, 42), App.Rotation())
add_polygon(sketch16, [(42, -4), (42, -17), (45.4, -17), (45.4, -4)])
sketch16.addConstraint(Sketcher.Constraint("Vertical", 0))
sketch16.addConstraint(Sketcher.Constraint("Horizontal", 1))
sketch16.addConstraint(Sketcher.Constraint("Vertical", 2))
sketch16.addConstraint(Sketcher.Constraint("Horizontal", 3))
sketch16.addConstraint(Sketcher.Constraint("DistanceY", 0, 2, 0, 1, 13.0))
sketch16.addConstraint(Sketcher.Constraint("DistanceX", 1, 1, 1, 2, 3.4))
sketch16.addConstraint(Sketcher.Constraint("DistanceX", -1, 1, 0, 2, 42.0))
sketch16.addConstraint(Sketcher.Constraint("DistanceY", 0, 2, -1, 1, 17.0))
pocket1 = body.newObject("PartDesign::Pocket", "Pocket")
pocket1.Profile = sketch16
pocket1.Length = 11

sketch17 = body.newObject("Sketcher::SketchObject", "Sketch016")
sketch17.AttachmentSupport = (doc.getObject("XY_Plane"), [""])
sketch17.MapMode = "FlatFace"
sketch17.AttachmentOffset = App.Placement(App.Vector(0, 0, 44), App.Rotation())
add_polygon(sketch17, [(16, -31), (16, -34.4), (32, -34.4), (32, -31)])
sketch17.addConstraint(Sketcher.Constraint("Vertical", 0))
sketch17.addConstraint(Sketcher.Constraint("Horizontal", 1))
sketch17.addConstraint(Sketcher.Constraint("Vertical", 2))
sketch17.addConstraint(Sketcher.Constraint("Horizontal", 3))
sketch17.addConstraint(Sketcher.Constraint("DistanceX", 1, 1, 1, 2, 16.0))
sketch17.addConstraint(Sketcher.Constraint("DistanceY", 0, 2, 0, 1, 3.4))
sketch17.addConstraint(Sketcher.Constraint("DistanceX", -1, 1, 0, 2, 16.0))
sketch17.addConstraint(Sketcher.Constraint("DistanceY", 2, 2, -1, 1, 31.0))
pocket2 = body.newObject("PartDesign::Pocket", "Pocket001")
pocket2.Profile = sketch17
pocket2.Length = 12

doc.recompute()
